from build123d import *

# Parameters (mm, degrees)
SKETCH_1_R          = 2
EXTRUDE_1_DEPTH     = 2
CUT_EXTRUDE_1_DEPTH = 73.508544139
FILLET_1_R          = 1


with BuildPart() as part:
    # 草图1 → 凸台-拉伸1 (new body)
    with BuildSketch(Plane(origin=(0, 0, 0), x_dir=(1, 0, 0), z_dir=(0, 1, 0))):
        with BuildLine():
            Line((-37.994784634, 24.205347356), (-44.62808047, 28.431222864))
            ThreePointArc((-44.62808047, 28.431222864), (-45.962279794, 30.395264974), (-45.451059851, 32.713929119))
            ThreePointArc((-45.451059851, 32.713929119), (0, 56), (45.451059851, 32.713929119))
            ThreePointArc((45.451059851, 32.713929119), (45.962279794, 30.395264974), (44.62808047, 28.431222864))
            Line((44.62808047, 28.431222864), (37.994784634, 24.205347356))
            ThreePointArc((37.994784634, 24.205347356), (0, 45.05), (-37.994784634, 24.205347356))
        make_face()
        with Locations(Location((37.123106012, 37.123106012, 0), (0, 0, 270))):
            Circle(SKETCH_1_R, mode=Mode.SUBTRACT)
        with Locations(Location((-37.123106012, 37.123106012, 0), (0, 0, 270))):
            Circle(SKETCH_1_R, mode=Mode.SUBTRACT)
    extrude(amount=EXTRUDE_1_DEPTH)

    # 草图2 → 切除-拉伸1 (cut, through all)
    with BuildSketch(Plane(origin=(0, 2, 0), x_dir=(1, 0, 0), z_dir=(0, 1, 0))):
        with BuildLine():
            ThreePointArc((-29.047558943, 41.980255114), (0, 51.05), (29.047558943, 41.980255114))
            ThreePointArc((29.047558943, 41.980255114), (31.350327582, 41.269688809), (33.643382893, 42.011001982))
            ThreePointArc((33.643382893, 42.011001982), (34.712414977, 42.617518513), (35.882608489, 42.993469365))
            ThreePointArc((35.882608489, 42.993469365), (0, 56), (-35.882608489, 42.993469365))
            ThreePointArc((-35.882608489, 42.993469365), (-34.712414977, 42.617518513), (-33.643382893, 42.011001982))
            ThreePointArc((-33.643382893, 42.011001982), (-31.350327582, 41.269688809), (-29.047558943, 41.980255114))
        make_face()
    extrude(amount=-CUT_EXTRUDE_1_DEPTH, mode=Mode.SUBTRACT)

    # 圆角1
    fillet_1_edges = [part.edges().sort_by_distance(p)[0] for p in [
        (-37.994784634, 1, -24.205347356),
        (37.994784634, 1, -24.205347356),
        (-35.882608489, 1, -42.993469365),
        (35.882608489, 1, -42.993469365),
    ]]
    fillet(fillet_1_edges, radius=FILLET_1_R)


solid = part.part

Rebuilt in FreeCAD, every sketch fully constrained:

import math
import FreeCAD as App
import Part
import Sketcher
Q = App.Units.Quantity


def edges_at(feature, points):
    """Names of the edges that pass closest to the given points."""
    edges = feature.Shape.Edges
    near = lambda p: min(range(len(edges)), key=lambda i: edges[i].distToShape(Part.Vertex(*p))[0])
    return sorted({f"Edge{near(p) + 1}" for p in points})

doc = App.newDocument("Part")
body = doc.addObject("PartDesign::Body", "Body")

# Sketch on XZ plane
sketch1 = doc.addObject("Sketcher::SketchObject", "Sketch")
body.addObject(sketch1)
sketch1.AttachmentSupport = (doc.XZ_Plane, [""])
sketch1.MapMode = "FlatFace"
sketch1.addGeometry([
    Part.LineSegment(App.Vector(-44.62808, -28.431223, 0), App.Vector(-37.994785, -24.205347, 0)),  # 0
    Part.ArcOfCircle(Part.Circle(App.Vector(0, 0, 0), App.Vector(0, 0, 1), 45.05), math.radians(-147.5), math.radians(-32.5)),  # 1
    Part.LineSegment(App.Vector(37.994785, -24.205347, 0), App.Vector(44.62808, -28.431223, 0)),  # 2
    Part.ArcOfCircle(Part.Circle(App.Vector(43.016182, -30.961397, 0), App.Vector(0, 0, 1), 3), math.radians(-35.744892), math.radians(57.5)),  # 3
    Part.ArcOfCircle(Part.Circle(App.Vector(0, 0, 0), App.Vector(0, 0, 1), 56), math.radians(-144.255108), math.radians(-35.744892)),  # 4
    Part.ArcOfCircle(Part.Circle(App.Vector(-43.016182, -30.961397, 0), App.Vector(0, 0, 1), 3), math.radians(122.5), math.radians(215.744892)),  # 5
    Part.Circle(App.Vector(37.123106, -37.123106, 0), App.Vector(0, 0, 1), 2),  # 6
    Part.Circle(App.Vector(-37.123106, -37.123106, 0), App.Vector(0, 0, 1), 2),  # 7
], False)
sketch1.addConstraint([
    Sketcher.Constraint("Coincident", 0, 2, 1, 1),
    Sketcher.Constraint("Coincident", 1, 2, 2, 1),
    Sketcher.Constraint("Tangent", 2, 2, 3, 2),
    Sketcher.Constraint("Tangent", 3, 1, 4, 2),
    Sketcher.Constraint("Tangent", 4, 1, 5, 2),
    Sketcher.Constraint("Tangent", 5, 1, 0, 1),
    Sketcher.Constraint("Coincident", 1, 3, -1, 1),
    Sketcher.Constraint("Coincident", 4, 3, -1, 1),
    Sketcher.Constraint("Equal", 3, 5),
    Sketcher.Constraint("Equal", 6, 7),
    Sketcher.Constraint("Symmetric", 6, 3, 7, 3, -2),
    Sketcher.Constraint("Symmetric", 2, 2, 5, 1, -2),
    Sketcher.Constraint("Diameter", 6, 4.0),
    Sketcher.Constraint("Radius", 3, 3.0),
    Sketcher.Constraint("Radius", 4, 56.0),
    Sketcher.Constraint("Radius", 1, 45.05),
    Sketcher.Constraint("Angle", 0, Q("32.5 deg")),
    Sketcher.Constraint("DistanceX", -1, 1, 3, 3, 43.016182),
    Sketcher.Constraint("DistanceY", 6, 3, 3, 3, 6.161709),
    Sketcher.Constraint("DistanceX", 0, 2, 7, 3, 0.871679),
])
pad1 = doc.addObject("PartDesign::Pad", "Pad")
body.addObject(pad1)
pad1.Profile = sketch1
pad1.Length = 2
pad1.Reversed = True

# Sketch on XZ plane
sketch2 = doc.addObject("Sketcher::SketchObject", "Sketch001")
body.addObject(sketch2)
sketch2.AttachmentSupport = (doc.XZ_Plane, [""])
sketch2.MapMode = "FlatFace"
sketch2.AttachmentOffset = App.Placement(App.Vector(0, 0, -2), App.Rotation())
sketch2.addGeometry([
    Part.ArcOfCircle(Part.Circle(App.Vector(0, 0, 0), App.Vector(0, 0, 1), 51.05), math.radians(-124.680671), math.radians(-55.319329)),  # 0
    Part.ArcOfCircle(Part.Circle(App.Vector(31.323567, -45.269599, 0), App.Vector(0, 0, 1), 4), math.radians(54.552703), math.radians(124.680671)),  # 1
    Part.ArcOfCircle(Part.Circle(App.Vector(37.123106, -37.123106, 0), App.Vector(0, 0, 1), 6), math.radians(-125.447297), math.radians(-101.931937)),  # 2
    Part.ArcOfCircle(Part.Circle(App.Vector(0, 0, 0), App.Vector(0, 0, 1), 56), math.radians(-129.848579), math.radians(-50.151421)),  # 3
    Part.ArcOfCircle(Part.Circle(App.Vector(-37.123106, -37.123106, 0), App.Vector(0, 0, 1), 6), math.radians(-78.068063), math.radians(-54.552703)),  # 4
    Part.ArcOfCircle(Part.Circle(App.Vector(-31.323567, -45.269599, 0), App.Vector(0, 0, 1), 4), math.radians(55.319329), math.radians(125.447297)),  # 5
], False)
sketch2.addConstraint([
    Sketcher.Constraint("Tangent", 0, 2, 1, 2),
    Sketcher.Constraint("Tangent", 1, 1, 2, 1),
    Sketcher.Constraint("Coincident", 2, 2, 3, 2),
    Sketcher.Constraint("Coincident", 3, 1, 4, 1),
    Sketcher.Constraint("Tangent", 4, 2, 5, 2),
    Sketcher.Constraint("Tangent", 5, 1, 0, 1),
    Sketcher.Constraint("Coincident", 0, 3, -1, 1),
    Sketcher.Constraint("Coincident", 3, 3, -1, 1),
    Sketcher.Constraint("Equal", 2, 4),
    Sketcher.Constraint("Equal", 1, 5),
    Sketcher.Constraint("Symmetric", 2, 3, 4, 3, -2),
    Sketcher.Constraint("Radius", 1, 4.0),
    Sketcher.Constraint("Radius", 2, 6.0),
    Sketcher.Constraint("Radius", 3, 56.0),
    Sketcher.Constraint("Radius", 0, 51.05),
    Sketcher.Constraint("DistanceY", 1, 1, -1, 1, 42.011002),
    Sketcher.Constraint("DistanceY", 1, 3, -1, 1, 45.269599),
])
pocket1 = doc.addObject("PartDesign::Pocket", "Pocket")
body.addObject(pocket1)
pocket1.Profile = sketch2
pocket1.Type = "ThroughAll"
pocket1.Reversed = True
doc.recompute()

fillet = doc.addObject("PartDesign::Fillet", "Fillet")
body.addObject(fillet)
fillet.Base = (pocket1, edges_at(pocket1, [
    (-37.995, 1, -24.205),
    (37.995, 1, -24.205),
    (-35.883, 1, -42.993),
    (35.883, 1, -42.993),
]))
fillet.Radius = 1

doc.recompute()
